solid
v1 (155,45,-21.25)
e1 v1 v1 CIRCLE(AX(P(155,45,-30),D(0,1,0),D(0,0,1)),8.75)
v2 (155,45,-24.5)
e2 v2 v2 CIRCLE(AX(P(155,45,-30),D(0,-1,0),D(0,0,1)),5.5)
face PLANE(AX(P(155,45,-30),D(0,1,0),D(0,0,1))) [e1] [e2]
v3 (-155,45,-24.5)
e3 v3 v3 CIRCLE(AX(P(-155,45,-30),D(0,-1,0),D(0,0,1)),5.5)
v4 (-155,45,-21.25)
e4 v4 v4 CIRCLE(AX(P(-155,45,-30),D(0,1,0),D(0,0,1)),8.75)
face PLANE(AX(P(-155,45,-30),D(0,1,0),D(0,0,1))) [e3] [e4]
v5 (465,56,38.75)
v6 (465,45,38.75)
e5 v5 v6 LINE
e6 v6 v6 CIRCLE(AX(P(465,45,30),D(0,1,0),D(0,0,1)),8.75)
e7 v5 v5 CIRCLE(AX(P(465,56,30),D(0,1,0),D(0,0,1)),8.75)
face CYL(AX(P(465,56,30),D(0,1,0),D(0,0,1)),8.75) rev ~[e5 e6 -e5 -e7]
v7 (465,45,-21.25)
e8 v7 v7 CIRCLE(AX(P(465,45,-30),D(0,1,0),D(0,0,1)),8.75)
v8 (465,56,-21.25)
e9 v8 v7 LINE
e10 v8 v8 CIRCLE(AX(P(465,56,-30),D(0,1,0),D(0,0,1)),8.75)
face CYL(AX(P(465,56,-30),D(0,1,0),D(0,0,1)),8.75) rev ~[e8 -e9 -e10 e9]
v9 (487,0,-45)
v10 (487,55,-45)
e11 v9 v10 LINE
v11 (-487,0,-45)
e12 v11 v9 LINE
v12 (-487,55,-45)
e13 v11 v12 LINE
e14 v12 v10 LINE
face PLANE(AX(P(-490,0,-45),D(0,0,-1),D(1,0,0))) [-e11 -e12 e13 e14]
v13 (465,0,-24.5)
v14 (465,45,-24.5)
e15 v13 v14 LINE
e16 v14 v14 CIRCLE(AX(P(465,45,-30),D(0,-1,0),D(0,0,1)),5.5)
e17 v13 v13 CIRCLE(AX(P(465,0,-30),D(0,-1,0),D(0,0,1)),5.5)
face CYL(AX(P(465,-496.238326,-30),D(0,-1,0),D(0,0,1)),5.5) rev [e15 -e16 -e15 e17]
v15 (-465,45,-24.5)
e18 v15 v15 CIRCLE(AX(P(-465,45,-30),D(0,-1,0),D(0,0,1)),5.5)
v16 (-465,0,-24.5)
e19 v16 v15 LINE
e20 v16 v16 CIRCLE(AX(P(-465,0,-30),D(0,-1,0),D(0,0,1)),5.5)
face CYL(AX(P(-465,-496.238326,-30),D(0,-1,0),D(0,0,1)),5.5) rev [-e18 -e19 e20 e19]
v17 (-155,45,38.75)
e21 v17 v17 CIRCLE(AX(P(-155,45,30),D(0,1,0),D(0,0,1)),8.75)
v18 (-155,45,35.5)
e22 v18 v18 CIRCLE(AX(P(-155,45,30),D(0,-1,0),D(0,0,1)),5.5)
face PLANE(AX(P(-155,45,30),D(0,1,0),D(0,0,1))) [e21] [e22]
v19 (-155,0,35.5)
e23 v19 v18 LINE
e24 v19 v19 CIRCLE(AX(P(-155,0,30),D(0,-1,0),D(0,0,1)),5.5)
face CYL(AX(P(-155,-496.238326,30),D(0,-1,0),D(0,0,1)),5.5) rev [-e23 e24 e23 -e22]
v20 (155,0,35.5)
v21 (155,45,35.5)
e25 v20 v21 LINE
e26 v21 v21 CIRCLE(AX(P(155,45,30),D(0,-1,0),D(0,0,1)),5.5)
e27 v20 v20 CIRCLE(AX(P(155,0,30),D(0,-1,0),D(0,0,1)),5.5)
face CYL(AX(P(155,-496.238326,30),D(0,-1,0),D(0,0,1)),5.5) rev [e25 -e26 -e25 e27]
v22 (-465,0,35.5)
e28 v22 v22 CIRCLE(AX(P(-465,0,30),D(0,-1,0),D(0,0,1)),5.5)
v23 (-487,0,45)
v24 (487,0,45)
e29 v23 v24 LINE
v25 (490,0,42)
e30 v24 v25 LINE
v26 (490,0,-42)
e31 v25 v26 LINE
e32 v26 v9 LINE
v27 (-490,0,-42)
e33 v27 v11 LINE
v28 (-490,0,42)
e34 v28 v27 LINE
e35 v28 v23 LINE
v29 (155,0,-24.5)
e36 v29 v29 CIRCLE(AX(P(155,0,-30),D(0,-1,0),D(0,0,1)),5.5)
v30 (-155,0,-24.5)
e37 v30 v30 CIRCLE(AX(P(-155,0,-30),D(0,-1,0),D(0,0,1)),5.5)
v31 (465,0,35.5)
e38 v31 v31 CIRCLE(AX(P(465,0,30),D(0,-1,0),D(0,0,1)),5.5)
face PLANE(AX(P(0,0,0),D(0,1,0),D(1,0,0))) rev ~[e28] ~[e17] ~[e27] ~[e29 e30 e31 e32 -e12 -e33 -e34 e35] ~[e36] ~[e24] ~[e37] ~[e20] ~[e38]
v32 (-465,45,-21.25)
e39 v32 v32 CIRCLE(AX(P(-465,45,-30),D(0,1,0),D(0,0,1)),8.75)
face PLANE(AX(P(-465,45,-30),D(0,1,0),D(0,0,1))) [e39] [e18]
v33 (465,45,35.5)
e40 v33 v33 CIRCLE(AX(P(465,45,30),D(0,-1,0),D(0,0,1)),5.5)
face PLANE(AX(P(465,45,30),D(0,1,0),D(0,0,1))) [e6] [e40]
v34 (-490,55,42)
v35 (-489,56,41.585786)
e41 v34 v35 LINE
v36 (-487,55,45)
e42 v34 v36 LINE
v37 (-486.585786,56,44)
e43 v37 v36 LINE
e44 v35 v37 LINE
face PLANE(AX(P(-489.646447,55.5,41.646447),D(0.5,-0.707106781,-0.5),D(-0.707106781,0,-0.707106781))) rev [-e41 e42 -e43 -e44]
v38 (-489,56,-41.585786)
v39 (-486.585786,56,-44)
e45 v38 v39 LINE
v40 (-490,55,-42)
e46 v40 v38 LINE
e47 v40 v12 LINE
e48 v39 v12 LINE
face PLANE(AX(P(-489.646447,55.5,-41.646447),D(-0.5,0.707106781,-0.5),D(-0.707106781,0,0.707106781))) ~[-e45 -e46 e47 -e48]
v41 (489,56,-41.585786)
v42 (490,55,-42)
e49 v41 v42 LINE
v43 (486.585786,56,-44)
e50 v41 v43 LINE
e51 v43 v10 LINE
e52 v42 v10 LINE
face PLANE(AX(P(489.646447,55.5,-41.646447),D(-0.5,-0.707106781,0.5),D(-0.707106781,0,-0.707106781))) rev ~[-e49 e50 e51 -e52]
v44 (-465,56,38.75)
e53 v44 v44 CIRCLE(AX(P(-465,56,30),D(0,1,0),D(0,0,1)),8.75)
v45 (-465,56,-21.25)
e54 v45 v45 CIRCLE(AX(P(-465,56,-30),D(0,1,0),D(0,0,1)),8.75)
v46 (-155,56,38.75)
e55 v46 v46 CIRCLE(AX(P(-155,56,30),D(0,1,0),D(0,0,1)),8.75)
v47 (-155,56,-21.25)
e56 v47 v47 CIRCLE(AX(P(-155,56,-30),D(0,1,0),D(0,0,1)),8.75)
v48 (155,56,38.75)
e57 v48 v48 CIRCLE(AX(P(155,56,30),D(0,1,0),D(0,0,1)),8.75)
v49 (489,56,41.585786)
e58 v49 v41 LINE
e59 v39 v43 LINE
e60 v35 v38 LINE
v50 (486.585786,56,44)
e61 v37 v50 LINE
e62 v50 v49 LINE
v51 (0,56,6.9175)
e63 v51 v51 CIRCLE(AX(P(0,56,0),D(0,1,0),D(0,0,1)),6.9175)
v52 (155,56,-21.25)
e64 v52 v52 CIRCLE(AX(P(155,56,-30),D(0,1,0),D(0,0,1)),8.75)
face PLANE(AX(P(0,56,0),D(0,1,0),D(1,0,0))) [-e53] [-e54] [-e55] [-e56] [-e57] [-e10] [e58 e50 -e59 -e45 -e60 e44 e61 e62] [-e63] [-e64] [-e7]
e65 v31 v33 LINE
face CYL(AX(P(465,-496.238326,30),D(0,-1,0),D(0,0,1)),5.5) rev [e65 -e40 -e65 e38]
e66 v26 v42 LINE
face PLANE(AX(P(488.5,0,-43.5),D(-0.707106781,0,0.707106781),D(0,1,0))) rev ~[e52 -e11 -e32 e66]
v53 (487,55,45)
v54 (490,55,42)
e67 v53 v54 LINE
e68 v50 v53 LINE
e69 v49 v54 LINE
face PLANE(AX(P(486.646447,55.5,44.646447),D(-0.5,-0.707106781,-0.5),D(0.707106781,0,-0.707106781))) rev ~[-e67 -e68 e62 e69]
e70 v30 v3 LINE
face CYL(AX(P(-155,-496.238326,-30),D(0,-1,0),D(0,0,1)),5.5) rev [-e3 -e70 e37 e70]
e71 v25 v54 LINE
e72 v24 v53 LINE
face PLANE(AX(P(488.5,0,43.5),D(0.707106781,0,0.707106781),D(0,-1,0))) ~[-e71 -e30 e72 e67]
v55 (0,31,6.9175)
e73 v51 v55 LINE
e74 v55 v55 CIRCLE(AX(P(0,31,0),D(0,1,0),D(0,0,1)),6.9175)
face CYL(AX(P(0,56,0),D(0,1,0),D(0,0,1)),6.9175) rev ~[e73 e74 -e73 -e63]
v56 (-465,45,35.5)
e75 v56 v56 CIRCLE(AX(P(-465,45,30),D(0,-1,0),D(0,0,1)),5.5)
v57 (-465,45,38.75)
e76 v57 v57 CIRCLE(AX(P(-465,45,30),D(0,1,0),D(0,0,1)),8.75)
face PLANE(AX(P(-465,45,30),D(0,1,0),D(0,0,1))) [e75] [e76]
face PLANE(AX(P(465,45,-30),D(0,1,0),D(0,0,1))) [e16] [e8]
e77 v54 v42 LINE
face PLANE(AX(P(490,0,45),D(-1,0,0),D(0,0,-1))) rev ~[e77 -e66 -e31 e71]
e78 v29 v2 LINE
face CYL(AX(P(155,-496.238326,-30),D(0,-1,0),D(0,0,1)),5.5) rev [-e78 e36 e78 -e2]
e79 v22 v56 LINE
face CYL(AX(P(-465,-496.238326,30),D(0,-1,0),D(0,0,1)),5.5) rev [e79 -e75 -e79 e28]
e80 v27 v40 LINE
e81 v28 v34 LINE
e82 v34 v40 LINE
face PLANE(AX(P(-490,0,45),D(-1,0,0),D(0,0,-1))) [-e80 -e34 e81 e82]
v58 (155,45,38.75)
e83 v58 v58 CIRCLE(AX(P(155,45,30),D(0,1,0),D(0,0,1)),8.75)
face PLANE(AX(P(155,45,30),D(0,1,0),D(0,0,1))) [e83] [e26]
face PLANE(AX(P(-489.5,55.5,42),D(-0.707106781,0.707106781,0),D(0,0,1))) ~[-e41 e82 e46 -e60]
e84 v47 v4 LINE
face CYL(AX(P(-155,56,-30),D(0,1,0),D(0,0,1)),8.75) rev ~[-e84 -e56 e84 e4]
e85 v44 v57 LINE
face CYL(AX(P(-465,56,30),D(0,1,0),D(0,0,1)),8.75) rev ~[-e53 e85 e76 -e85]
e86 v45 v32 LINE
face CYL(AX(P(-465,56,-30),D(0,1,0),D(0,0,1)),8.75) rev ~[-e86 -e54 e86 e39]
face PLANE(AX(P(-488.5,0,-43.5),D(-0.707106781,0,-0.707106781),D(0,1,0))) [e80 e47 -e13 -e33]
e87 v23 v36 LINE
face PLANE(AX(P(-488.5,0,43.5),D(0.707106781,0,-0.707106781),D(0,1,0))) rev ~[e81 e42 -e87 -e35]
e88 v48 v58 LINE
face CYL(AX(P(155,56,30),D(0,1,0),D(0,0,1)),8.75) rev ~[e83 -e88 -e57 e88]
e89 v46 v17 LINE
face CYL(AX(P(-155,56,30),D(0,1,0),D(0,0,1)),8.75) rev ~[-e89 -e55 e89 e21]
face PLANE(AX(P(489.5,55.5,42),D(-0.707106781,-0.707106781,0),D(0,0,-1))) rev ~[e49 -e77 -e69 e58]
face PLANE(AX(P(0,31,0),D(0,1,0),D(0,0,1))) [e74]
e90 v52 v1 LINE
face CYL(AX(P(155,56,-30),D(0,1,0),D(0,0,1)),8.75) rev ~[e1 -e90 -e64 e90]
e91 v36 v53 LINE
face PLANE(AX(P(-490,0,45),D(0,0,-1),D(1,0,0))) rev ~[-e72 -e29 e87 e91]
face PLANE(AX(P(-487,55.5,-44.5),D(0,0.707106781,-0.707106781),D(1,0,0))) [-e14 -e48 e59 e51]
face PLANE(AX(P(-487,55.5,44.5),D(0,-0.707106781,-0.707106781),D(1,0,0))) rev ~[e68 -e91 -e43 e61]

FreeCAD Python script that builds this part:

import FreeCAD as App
import Part
import Sketcher
from FreeCAD import Vector
Q = App.Units.Quantity


def edges_at(feature, points):
    """Names of the edges that pass closest to the given points."""
    edges = feature.Shape.Edges
    near = lambda p: min(range(len(edges)), key=lambda i: edges[i].distToShape(Part.Vertex(*p))[0])
    return sorted({f"Edge{near(p) + 1}" for p in points})

doc = App.newDocument("Part")
body = doc.addObject("PartDesign::Body", "Body")

# Sketch on XZ plane
sketch1 = doc.addObject("Sketcher::SketchObject", "Sketch")
body.addObject(sketch1)
sketch1.AttachmentSupport = (doc.XZ_Plane, [""])
sketch1.MapMode = "FlatFace"
sketch1.addGeometry(Part.LineSegment(Vector(-490, -45, 0), Vector(-490, 45, 0)), False)
sketch1.addGeometry(Part.LineSegment(Vector(-490, 45, 0), Vector(490, 45, 0)), False)
sketch1.addGeometry(Part.LineSegment(Vector(490, 45, 0), Vector(490, -45, 0)), False)
sketch1.addGeometry(Part.LineSegment(Vector(490, -45, 0), Vector(-490, -45, 0)), False)
sketch1.addConstraint(Sketcher.Constraint("Coincident", 0, 2, 1, 1))
sketch1.addConstraint(Sketcher.Constraint("Coincident", 1, 2, 2, 1))
sketch1.addConstraint(Sketcher.Constraint("Coincident", 2, 2, 3, 1))
sketch1.addConstraint(Sketcher.Constraint("Coincident", 3, 2, 0, 1))
sketch1.addConstraint(Sketcher.Constraint("Vertical", 0))
sketch1.addConstraint(Sketcher.Constraint("Horizontal", 1))
sketch1.addConstraint(Sketcher.Constraint("Vertical", 2))
sketch1.addConstraint(Sketcher.Constraint("Horizontal", 3))
sketch1.addConstraint(Sketcher.Constraint("Symmetric", 0, 2, 2, 2, -1, 1))
sketch1.addConstraint(Sketcher.Constraint("DistanceX", 1, 1, 1, 2, Q("980 mm")))
sketch1.addConstraint(Sketcher.Constraint("DistanceY", 0, 1, 0, 2, Q("90 mm")))
pad1 = doc.addObject("PartDesign::Pad", "Pad")
body.addObject(pad1)
pad1.Profile = sketch1
pad1.Length = 56
pad1.Reversed = True
doc.recompute()

chamfer = doc.addObject("PartDesign::Chamfer", "Chamfer")
body.addObject(chamfer)
chamfer.Base = (pad1, edges_at(pad1, [
    (-490, 28, -45),
    (490, 28, -45),
    (490, 28, 45),
    (-490, 28, 45),
]))
chamfer.Size = 3
doc.recompute()

chamfer2 = doc.addObject("PartDesign::Chamfer", "Chamfer001")
body.addObject(chamfer2)
chamfer2.Base = (chamfer, edges_at(chamfer, [
    (-490, 56, 0),
    (0, 56, -45),
    (0, 56, 45),
    (490, 56, 0),
    (-488.5, 56, 43.5),
    (488.5, 56, 43.5),
    (488.5, 56, -43.5),
    (-488.5, 56, -43.5),
]))
chamfer2.Size = 1

# Sketch on XZ plane
sketch2 = doc.addObject("Sketcher::SketchObject", "Sketch001")
body.addObject(sketch2)
sketch2.AttachmentSupport = (doc.XZ_Plane, [""])
sketch2.MapMode = "FlatFace"
sketch2.addGeometry(Part.Circle(Vector(-155, 30, 0), Vector(0, 0, 1), 6), False)
sketch2.addGeometry(Part.Circle(Vector(-155, -30, 0), Vector(0, 0, 1), 6), False)
sketch2.addGeometry(Part.Circle(Vector(-465, 30, 0), Vector(0, 0, 1), 6), False)
sketch2.addGeometry(Part.Circle(Vector(-465, -30, 0), Vector(0, 0, 1), 6), False)
sketch2.addGeometry(Part.Circle(Vector(155, 30, 0), Vector(0, 0, 1), 6), False)
sketch2.addGeometry(Part.Circle(Vector(155, -30, 0), Vector(0, 0, 1), 6), False)
sketch2.addGeometry(Part.Circle(Vector(465, 30, 0), Vector(0, 0, 1), 6), False)
sketch2.addGeometry(Part.Circle(Vector(465, -30, 0), Vector(0, 0, 1), 6), False)
sketch2.addConstraint(Sketcher.Constraint("Equal", 0, 1))
sketch2.addConstraint(Sketcher.Constraint("Equal", 1, 2))
sketch2.addConstraint(Sketcher.Constraint("Equal", 2, 3))
sketch2.addConstraint(Sketcher.Constraint("Equal", 3, 4))
sketch2.addConstraint(Sketcher.Constraint("Equal", 4, 5))
sketch2.addConstraint(Sketcher.Constraint("Equal", 5, 6))
sketch2.addConstraint(Sketcher.Constraint("Equal", 6, 7))
sketch2.addConstraint(Sketcher.Constraint("Symmetric", 1, 3, 4, 3, -1, 1))
sketch2.addConstraint(Sketcher.Constraint("Symmetric", 0, 3, 5, 3, -1, 1))
sketch2.addConstraint(Sketcher.Constraint("Symmetric", 3, 3, 6, 3, -1, 1))
sketch2.addConstraint(Sketcher.Constraint("Symmetric", 2, 3, 7, 3, -1, 1))
sketch2.addConstraint(Sketcher.Constraint("Symmetric", 0, 3, 4, 3, -2))
sketch2.addConstraint(Sketcher.Constraint("Symmetric", 2, 3, 6, 3, -2))
sketch2.addConstraint(Sketcher.Constraint("Horizontal", 0, 3, 2, 3))
sketch2.addConstraint(Sketcher.Constraint("Diameter", 0, Q("11 mm")))
sketch2.addConstraint(Sketcher.Constraint("DistanceX", 0, 3, -1, 1, Q("155 mm")))
sketch2.addConstraint(Sketcher.Constraint("DistanceY", -1, 1, 0, 3, Q("30 mm")))
sketch2.addConstraint(Sketcher.Constraint("DistanceX", 2, 3, -1, 1, Q("465 mm")))
pocket1 = doc.addObject("PartDesign::Pocket", "Pocket")
body.addObject(pocket1)
pocket1.Profile = sketch2
pocket1.Type = "ThroughAll"
pocket1.Midplane = True

# Sketch on XZ plane
sketch3 = doc.addObject("Sketcher::SketchObject", "Sketch002")
body.addObject(sketch3)
sketch3.AttachmentSupport = (doc.XZ_Plane, [""])
sketch3.MapMode = "FlatFace"
sketch3.AttachmentOffset = App.Placement(Vector(0, 0, -56), App.Rotation())
sketch3.addGeometry(Part.Circle(Vector(-155, 30, 0), Vector(0, 0, 1), 9), False)
sketch3.addGeometry(Part.Circle(Vector(-155, -30, 0), Vector(0, 0, 1), 9), False)
sketch3.addGeometry(Part.Circle(Vector(-465, 30, 0), Vector(0, 0, 1), 9), False)
sketch3.addGeometry(Part.Circle(Vector(-465, -30, 0), Vector(0, 0, 1), 9), False)
sketch3.addGeometry(Part.Circle(Vector(155, 30, 0), Vector(0, 0, 1), 9), False)
sketch3.addGeometry(Part.Circle(Vector(155, -30, 0), Vector(0, 0, 1), 9), False)
sketch3.addGeometry(Part.Circle(Vector(465, 30, 0), Vector(0, 0, 1), 9), False)
sketch3.addGeometry(Part.Circle(Vector(465, -30, 0), Vector(0, 0, 1), 9), False)
sketch3.addConstraint(Sketcher.Constraint("Equal", 0, 1))
sketch3.addConstraint(Sketcher.Constraint("Equal", 1, 2))
sketch3.addConstraint(Sketcher.Constraint("Equal", 2, 3))
sketch3.addConstraint(Sketcher.Constraint("Equal", 3, 4))
sketch3.addConstraint(Sketcher.Constraint("Equal", 4, 5))
sketch3.addConstraint(Sketcher.Constraint("Equal", 5, 6))
sketch3.addConstraint(Sketcher.Constraint("Equal", 6, 7))
sketch3.addConstraint(Sketcher.Constraint("Symmetric", 1, 3, 4, 3, -1, 1))
sketch3.addConstraint(Sketcher.Constraint("Symmetric", 0, 3, 5, 3, -1, 1))
sketch3.addConstraint(Sketcher.Constraint("Symmetric", 3, 3, 6, 3, -1, 1))
sketch3.addConstraint(Sketcher.Constraint("Symmetric", 2, 3, 7, 3, -1, 1))
sketch3.addConstraint(Sketcher.Constraint("Symmetric", 0, 3, 4, 3, -2))
sketch3.addConstraint(Sketcher.Constraint("Symmetric", 2, 3, 6, 3, -2))
sketch3.addConstraint(Sketcher.Constraint("Horizontal", 0, 3, 2, 3))
sketch3.addConstraint(Sketcher.Constraint("Diameter", 0, Q("17.5 mm")))
sketch3.addConstraint(Sketcher.Constraint("DistanceX", 0, 3, -1, 1, Q("155 mm")))
sketch3.addConstraint(Sketcher.Constraint("DistanceY", -1, 1, 0, 3, Q("30 mm")))
sketch3.addConstraint(Sketcher.Constraint("DistanceX", 2, 3, -1, 1, Q("465 mm")))
pocket2 = doc.addObject("PartDesign::Pocket", "Pocket001")
body.addObject(pocket2)
pocket2.Profile = sketch3
pocket2.Length = 11
pocket2.Reversed = True

# Sketch on XZ plane
sketch4 = doc.addObject("Sketcher::SketchObject", "Sketch003")
body.addObject(sketch4)
sketch4.AttachmentSupport = (doc.XZ_Plane, [""])
sketch4.MapMode = "FlatFace"
sketch4.AttachmentOffset = App.Placement(Vector(0, 0, -56), App.Rotation())
sketch4.addGeometry(Part.Circle(Vector(0, 0, 0), Vector(0, 0, 1), 7), False)
sketch4.addConstraint(Sketcher.Constraint("Coincident", 0, 3, -1, 1))
sketch4.addConstraint(Sketcher.Constraint("Diameter", 0, Q("13.835 mm")))
pocket3 = doc.addObject("PartDesign::Pocket", "Pocket002")
body.addObject(pocket3)
pocket3.Profile = sketch4
pocket3.Length = 25
pocket3.Reversed = True

doc.recompute()
